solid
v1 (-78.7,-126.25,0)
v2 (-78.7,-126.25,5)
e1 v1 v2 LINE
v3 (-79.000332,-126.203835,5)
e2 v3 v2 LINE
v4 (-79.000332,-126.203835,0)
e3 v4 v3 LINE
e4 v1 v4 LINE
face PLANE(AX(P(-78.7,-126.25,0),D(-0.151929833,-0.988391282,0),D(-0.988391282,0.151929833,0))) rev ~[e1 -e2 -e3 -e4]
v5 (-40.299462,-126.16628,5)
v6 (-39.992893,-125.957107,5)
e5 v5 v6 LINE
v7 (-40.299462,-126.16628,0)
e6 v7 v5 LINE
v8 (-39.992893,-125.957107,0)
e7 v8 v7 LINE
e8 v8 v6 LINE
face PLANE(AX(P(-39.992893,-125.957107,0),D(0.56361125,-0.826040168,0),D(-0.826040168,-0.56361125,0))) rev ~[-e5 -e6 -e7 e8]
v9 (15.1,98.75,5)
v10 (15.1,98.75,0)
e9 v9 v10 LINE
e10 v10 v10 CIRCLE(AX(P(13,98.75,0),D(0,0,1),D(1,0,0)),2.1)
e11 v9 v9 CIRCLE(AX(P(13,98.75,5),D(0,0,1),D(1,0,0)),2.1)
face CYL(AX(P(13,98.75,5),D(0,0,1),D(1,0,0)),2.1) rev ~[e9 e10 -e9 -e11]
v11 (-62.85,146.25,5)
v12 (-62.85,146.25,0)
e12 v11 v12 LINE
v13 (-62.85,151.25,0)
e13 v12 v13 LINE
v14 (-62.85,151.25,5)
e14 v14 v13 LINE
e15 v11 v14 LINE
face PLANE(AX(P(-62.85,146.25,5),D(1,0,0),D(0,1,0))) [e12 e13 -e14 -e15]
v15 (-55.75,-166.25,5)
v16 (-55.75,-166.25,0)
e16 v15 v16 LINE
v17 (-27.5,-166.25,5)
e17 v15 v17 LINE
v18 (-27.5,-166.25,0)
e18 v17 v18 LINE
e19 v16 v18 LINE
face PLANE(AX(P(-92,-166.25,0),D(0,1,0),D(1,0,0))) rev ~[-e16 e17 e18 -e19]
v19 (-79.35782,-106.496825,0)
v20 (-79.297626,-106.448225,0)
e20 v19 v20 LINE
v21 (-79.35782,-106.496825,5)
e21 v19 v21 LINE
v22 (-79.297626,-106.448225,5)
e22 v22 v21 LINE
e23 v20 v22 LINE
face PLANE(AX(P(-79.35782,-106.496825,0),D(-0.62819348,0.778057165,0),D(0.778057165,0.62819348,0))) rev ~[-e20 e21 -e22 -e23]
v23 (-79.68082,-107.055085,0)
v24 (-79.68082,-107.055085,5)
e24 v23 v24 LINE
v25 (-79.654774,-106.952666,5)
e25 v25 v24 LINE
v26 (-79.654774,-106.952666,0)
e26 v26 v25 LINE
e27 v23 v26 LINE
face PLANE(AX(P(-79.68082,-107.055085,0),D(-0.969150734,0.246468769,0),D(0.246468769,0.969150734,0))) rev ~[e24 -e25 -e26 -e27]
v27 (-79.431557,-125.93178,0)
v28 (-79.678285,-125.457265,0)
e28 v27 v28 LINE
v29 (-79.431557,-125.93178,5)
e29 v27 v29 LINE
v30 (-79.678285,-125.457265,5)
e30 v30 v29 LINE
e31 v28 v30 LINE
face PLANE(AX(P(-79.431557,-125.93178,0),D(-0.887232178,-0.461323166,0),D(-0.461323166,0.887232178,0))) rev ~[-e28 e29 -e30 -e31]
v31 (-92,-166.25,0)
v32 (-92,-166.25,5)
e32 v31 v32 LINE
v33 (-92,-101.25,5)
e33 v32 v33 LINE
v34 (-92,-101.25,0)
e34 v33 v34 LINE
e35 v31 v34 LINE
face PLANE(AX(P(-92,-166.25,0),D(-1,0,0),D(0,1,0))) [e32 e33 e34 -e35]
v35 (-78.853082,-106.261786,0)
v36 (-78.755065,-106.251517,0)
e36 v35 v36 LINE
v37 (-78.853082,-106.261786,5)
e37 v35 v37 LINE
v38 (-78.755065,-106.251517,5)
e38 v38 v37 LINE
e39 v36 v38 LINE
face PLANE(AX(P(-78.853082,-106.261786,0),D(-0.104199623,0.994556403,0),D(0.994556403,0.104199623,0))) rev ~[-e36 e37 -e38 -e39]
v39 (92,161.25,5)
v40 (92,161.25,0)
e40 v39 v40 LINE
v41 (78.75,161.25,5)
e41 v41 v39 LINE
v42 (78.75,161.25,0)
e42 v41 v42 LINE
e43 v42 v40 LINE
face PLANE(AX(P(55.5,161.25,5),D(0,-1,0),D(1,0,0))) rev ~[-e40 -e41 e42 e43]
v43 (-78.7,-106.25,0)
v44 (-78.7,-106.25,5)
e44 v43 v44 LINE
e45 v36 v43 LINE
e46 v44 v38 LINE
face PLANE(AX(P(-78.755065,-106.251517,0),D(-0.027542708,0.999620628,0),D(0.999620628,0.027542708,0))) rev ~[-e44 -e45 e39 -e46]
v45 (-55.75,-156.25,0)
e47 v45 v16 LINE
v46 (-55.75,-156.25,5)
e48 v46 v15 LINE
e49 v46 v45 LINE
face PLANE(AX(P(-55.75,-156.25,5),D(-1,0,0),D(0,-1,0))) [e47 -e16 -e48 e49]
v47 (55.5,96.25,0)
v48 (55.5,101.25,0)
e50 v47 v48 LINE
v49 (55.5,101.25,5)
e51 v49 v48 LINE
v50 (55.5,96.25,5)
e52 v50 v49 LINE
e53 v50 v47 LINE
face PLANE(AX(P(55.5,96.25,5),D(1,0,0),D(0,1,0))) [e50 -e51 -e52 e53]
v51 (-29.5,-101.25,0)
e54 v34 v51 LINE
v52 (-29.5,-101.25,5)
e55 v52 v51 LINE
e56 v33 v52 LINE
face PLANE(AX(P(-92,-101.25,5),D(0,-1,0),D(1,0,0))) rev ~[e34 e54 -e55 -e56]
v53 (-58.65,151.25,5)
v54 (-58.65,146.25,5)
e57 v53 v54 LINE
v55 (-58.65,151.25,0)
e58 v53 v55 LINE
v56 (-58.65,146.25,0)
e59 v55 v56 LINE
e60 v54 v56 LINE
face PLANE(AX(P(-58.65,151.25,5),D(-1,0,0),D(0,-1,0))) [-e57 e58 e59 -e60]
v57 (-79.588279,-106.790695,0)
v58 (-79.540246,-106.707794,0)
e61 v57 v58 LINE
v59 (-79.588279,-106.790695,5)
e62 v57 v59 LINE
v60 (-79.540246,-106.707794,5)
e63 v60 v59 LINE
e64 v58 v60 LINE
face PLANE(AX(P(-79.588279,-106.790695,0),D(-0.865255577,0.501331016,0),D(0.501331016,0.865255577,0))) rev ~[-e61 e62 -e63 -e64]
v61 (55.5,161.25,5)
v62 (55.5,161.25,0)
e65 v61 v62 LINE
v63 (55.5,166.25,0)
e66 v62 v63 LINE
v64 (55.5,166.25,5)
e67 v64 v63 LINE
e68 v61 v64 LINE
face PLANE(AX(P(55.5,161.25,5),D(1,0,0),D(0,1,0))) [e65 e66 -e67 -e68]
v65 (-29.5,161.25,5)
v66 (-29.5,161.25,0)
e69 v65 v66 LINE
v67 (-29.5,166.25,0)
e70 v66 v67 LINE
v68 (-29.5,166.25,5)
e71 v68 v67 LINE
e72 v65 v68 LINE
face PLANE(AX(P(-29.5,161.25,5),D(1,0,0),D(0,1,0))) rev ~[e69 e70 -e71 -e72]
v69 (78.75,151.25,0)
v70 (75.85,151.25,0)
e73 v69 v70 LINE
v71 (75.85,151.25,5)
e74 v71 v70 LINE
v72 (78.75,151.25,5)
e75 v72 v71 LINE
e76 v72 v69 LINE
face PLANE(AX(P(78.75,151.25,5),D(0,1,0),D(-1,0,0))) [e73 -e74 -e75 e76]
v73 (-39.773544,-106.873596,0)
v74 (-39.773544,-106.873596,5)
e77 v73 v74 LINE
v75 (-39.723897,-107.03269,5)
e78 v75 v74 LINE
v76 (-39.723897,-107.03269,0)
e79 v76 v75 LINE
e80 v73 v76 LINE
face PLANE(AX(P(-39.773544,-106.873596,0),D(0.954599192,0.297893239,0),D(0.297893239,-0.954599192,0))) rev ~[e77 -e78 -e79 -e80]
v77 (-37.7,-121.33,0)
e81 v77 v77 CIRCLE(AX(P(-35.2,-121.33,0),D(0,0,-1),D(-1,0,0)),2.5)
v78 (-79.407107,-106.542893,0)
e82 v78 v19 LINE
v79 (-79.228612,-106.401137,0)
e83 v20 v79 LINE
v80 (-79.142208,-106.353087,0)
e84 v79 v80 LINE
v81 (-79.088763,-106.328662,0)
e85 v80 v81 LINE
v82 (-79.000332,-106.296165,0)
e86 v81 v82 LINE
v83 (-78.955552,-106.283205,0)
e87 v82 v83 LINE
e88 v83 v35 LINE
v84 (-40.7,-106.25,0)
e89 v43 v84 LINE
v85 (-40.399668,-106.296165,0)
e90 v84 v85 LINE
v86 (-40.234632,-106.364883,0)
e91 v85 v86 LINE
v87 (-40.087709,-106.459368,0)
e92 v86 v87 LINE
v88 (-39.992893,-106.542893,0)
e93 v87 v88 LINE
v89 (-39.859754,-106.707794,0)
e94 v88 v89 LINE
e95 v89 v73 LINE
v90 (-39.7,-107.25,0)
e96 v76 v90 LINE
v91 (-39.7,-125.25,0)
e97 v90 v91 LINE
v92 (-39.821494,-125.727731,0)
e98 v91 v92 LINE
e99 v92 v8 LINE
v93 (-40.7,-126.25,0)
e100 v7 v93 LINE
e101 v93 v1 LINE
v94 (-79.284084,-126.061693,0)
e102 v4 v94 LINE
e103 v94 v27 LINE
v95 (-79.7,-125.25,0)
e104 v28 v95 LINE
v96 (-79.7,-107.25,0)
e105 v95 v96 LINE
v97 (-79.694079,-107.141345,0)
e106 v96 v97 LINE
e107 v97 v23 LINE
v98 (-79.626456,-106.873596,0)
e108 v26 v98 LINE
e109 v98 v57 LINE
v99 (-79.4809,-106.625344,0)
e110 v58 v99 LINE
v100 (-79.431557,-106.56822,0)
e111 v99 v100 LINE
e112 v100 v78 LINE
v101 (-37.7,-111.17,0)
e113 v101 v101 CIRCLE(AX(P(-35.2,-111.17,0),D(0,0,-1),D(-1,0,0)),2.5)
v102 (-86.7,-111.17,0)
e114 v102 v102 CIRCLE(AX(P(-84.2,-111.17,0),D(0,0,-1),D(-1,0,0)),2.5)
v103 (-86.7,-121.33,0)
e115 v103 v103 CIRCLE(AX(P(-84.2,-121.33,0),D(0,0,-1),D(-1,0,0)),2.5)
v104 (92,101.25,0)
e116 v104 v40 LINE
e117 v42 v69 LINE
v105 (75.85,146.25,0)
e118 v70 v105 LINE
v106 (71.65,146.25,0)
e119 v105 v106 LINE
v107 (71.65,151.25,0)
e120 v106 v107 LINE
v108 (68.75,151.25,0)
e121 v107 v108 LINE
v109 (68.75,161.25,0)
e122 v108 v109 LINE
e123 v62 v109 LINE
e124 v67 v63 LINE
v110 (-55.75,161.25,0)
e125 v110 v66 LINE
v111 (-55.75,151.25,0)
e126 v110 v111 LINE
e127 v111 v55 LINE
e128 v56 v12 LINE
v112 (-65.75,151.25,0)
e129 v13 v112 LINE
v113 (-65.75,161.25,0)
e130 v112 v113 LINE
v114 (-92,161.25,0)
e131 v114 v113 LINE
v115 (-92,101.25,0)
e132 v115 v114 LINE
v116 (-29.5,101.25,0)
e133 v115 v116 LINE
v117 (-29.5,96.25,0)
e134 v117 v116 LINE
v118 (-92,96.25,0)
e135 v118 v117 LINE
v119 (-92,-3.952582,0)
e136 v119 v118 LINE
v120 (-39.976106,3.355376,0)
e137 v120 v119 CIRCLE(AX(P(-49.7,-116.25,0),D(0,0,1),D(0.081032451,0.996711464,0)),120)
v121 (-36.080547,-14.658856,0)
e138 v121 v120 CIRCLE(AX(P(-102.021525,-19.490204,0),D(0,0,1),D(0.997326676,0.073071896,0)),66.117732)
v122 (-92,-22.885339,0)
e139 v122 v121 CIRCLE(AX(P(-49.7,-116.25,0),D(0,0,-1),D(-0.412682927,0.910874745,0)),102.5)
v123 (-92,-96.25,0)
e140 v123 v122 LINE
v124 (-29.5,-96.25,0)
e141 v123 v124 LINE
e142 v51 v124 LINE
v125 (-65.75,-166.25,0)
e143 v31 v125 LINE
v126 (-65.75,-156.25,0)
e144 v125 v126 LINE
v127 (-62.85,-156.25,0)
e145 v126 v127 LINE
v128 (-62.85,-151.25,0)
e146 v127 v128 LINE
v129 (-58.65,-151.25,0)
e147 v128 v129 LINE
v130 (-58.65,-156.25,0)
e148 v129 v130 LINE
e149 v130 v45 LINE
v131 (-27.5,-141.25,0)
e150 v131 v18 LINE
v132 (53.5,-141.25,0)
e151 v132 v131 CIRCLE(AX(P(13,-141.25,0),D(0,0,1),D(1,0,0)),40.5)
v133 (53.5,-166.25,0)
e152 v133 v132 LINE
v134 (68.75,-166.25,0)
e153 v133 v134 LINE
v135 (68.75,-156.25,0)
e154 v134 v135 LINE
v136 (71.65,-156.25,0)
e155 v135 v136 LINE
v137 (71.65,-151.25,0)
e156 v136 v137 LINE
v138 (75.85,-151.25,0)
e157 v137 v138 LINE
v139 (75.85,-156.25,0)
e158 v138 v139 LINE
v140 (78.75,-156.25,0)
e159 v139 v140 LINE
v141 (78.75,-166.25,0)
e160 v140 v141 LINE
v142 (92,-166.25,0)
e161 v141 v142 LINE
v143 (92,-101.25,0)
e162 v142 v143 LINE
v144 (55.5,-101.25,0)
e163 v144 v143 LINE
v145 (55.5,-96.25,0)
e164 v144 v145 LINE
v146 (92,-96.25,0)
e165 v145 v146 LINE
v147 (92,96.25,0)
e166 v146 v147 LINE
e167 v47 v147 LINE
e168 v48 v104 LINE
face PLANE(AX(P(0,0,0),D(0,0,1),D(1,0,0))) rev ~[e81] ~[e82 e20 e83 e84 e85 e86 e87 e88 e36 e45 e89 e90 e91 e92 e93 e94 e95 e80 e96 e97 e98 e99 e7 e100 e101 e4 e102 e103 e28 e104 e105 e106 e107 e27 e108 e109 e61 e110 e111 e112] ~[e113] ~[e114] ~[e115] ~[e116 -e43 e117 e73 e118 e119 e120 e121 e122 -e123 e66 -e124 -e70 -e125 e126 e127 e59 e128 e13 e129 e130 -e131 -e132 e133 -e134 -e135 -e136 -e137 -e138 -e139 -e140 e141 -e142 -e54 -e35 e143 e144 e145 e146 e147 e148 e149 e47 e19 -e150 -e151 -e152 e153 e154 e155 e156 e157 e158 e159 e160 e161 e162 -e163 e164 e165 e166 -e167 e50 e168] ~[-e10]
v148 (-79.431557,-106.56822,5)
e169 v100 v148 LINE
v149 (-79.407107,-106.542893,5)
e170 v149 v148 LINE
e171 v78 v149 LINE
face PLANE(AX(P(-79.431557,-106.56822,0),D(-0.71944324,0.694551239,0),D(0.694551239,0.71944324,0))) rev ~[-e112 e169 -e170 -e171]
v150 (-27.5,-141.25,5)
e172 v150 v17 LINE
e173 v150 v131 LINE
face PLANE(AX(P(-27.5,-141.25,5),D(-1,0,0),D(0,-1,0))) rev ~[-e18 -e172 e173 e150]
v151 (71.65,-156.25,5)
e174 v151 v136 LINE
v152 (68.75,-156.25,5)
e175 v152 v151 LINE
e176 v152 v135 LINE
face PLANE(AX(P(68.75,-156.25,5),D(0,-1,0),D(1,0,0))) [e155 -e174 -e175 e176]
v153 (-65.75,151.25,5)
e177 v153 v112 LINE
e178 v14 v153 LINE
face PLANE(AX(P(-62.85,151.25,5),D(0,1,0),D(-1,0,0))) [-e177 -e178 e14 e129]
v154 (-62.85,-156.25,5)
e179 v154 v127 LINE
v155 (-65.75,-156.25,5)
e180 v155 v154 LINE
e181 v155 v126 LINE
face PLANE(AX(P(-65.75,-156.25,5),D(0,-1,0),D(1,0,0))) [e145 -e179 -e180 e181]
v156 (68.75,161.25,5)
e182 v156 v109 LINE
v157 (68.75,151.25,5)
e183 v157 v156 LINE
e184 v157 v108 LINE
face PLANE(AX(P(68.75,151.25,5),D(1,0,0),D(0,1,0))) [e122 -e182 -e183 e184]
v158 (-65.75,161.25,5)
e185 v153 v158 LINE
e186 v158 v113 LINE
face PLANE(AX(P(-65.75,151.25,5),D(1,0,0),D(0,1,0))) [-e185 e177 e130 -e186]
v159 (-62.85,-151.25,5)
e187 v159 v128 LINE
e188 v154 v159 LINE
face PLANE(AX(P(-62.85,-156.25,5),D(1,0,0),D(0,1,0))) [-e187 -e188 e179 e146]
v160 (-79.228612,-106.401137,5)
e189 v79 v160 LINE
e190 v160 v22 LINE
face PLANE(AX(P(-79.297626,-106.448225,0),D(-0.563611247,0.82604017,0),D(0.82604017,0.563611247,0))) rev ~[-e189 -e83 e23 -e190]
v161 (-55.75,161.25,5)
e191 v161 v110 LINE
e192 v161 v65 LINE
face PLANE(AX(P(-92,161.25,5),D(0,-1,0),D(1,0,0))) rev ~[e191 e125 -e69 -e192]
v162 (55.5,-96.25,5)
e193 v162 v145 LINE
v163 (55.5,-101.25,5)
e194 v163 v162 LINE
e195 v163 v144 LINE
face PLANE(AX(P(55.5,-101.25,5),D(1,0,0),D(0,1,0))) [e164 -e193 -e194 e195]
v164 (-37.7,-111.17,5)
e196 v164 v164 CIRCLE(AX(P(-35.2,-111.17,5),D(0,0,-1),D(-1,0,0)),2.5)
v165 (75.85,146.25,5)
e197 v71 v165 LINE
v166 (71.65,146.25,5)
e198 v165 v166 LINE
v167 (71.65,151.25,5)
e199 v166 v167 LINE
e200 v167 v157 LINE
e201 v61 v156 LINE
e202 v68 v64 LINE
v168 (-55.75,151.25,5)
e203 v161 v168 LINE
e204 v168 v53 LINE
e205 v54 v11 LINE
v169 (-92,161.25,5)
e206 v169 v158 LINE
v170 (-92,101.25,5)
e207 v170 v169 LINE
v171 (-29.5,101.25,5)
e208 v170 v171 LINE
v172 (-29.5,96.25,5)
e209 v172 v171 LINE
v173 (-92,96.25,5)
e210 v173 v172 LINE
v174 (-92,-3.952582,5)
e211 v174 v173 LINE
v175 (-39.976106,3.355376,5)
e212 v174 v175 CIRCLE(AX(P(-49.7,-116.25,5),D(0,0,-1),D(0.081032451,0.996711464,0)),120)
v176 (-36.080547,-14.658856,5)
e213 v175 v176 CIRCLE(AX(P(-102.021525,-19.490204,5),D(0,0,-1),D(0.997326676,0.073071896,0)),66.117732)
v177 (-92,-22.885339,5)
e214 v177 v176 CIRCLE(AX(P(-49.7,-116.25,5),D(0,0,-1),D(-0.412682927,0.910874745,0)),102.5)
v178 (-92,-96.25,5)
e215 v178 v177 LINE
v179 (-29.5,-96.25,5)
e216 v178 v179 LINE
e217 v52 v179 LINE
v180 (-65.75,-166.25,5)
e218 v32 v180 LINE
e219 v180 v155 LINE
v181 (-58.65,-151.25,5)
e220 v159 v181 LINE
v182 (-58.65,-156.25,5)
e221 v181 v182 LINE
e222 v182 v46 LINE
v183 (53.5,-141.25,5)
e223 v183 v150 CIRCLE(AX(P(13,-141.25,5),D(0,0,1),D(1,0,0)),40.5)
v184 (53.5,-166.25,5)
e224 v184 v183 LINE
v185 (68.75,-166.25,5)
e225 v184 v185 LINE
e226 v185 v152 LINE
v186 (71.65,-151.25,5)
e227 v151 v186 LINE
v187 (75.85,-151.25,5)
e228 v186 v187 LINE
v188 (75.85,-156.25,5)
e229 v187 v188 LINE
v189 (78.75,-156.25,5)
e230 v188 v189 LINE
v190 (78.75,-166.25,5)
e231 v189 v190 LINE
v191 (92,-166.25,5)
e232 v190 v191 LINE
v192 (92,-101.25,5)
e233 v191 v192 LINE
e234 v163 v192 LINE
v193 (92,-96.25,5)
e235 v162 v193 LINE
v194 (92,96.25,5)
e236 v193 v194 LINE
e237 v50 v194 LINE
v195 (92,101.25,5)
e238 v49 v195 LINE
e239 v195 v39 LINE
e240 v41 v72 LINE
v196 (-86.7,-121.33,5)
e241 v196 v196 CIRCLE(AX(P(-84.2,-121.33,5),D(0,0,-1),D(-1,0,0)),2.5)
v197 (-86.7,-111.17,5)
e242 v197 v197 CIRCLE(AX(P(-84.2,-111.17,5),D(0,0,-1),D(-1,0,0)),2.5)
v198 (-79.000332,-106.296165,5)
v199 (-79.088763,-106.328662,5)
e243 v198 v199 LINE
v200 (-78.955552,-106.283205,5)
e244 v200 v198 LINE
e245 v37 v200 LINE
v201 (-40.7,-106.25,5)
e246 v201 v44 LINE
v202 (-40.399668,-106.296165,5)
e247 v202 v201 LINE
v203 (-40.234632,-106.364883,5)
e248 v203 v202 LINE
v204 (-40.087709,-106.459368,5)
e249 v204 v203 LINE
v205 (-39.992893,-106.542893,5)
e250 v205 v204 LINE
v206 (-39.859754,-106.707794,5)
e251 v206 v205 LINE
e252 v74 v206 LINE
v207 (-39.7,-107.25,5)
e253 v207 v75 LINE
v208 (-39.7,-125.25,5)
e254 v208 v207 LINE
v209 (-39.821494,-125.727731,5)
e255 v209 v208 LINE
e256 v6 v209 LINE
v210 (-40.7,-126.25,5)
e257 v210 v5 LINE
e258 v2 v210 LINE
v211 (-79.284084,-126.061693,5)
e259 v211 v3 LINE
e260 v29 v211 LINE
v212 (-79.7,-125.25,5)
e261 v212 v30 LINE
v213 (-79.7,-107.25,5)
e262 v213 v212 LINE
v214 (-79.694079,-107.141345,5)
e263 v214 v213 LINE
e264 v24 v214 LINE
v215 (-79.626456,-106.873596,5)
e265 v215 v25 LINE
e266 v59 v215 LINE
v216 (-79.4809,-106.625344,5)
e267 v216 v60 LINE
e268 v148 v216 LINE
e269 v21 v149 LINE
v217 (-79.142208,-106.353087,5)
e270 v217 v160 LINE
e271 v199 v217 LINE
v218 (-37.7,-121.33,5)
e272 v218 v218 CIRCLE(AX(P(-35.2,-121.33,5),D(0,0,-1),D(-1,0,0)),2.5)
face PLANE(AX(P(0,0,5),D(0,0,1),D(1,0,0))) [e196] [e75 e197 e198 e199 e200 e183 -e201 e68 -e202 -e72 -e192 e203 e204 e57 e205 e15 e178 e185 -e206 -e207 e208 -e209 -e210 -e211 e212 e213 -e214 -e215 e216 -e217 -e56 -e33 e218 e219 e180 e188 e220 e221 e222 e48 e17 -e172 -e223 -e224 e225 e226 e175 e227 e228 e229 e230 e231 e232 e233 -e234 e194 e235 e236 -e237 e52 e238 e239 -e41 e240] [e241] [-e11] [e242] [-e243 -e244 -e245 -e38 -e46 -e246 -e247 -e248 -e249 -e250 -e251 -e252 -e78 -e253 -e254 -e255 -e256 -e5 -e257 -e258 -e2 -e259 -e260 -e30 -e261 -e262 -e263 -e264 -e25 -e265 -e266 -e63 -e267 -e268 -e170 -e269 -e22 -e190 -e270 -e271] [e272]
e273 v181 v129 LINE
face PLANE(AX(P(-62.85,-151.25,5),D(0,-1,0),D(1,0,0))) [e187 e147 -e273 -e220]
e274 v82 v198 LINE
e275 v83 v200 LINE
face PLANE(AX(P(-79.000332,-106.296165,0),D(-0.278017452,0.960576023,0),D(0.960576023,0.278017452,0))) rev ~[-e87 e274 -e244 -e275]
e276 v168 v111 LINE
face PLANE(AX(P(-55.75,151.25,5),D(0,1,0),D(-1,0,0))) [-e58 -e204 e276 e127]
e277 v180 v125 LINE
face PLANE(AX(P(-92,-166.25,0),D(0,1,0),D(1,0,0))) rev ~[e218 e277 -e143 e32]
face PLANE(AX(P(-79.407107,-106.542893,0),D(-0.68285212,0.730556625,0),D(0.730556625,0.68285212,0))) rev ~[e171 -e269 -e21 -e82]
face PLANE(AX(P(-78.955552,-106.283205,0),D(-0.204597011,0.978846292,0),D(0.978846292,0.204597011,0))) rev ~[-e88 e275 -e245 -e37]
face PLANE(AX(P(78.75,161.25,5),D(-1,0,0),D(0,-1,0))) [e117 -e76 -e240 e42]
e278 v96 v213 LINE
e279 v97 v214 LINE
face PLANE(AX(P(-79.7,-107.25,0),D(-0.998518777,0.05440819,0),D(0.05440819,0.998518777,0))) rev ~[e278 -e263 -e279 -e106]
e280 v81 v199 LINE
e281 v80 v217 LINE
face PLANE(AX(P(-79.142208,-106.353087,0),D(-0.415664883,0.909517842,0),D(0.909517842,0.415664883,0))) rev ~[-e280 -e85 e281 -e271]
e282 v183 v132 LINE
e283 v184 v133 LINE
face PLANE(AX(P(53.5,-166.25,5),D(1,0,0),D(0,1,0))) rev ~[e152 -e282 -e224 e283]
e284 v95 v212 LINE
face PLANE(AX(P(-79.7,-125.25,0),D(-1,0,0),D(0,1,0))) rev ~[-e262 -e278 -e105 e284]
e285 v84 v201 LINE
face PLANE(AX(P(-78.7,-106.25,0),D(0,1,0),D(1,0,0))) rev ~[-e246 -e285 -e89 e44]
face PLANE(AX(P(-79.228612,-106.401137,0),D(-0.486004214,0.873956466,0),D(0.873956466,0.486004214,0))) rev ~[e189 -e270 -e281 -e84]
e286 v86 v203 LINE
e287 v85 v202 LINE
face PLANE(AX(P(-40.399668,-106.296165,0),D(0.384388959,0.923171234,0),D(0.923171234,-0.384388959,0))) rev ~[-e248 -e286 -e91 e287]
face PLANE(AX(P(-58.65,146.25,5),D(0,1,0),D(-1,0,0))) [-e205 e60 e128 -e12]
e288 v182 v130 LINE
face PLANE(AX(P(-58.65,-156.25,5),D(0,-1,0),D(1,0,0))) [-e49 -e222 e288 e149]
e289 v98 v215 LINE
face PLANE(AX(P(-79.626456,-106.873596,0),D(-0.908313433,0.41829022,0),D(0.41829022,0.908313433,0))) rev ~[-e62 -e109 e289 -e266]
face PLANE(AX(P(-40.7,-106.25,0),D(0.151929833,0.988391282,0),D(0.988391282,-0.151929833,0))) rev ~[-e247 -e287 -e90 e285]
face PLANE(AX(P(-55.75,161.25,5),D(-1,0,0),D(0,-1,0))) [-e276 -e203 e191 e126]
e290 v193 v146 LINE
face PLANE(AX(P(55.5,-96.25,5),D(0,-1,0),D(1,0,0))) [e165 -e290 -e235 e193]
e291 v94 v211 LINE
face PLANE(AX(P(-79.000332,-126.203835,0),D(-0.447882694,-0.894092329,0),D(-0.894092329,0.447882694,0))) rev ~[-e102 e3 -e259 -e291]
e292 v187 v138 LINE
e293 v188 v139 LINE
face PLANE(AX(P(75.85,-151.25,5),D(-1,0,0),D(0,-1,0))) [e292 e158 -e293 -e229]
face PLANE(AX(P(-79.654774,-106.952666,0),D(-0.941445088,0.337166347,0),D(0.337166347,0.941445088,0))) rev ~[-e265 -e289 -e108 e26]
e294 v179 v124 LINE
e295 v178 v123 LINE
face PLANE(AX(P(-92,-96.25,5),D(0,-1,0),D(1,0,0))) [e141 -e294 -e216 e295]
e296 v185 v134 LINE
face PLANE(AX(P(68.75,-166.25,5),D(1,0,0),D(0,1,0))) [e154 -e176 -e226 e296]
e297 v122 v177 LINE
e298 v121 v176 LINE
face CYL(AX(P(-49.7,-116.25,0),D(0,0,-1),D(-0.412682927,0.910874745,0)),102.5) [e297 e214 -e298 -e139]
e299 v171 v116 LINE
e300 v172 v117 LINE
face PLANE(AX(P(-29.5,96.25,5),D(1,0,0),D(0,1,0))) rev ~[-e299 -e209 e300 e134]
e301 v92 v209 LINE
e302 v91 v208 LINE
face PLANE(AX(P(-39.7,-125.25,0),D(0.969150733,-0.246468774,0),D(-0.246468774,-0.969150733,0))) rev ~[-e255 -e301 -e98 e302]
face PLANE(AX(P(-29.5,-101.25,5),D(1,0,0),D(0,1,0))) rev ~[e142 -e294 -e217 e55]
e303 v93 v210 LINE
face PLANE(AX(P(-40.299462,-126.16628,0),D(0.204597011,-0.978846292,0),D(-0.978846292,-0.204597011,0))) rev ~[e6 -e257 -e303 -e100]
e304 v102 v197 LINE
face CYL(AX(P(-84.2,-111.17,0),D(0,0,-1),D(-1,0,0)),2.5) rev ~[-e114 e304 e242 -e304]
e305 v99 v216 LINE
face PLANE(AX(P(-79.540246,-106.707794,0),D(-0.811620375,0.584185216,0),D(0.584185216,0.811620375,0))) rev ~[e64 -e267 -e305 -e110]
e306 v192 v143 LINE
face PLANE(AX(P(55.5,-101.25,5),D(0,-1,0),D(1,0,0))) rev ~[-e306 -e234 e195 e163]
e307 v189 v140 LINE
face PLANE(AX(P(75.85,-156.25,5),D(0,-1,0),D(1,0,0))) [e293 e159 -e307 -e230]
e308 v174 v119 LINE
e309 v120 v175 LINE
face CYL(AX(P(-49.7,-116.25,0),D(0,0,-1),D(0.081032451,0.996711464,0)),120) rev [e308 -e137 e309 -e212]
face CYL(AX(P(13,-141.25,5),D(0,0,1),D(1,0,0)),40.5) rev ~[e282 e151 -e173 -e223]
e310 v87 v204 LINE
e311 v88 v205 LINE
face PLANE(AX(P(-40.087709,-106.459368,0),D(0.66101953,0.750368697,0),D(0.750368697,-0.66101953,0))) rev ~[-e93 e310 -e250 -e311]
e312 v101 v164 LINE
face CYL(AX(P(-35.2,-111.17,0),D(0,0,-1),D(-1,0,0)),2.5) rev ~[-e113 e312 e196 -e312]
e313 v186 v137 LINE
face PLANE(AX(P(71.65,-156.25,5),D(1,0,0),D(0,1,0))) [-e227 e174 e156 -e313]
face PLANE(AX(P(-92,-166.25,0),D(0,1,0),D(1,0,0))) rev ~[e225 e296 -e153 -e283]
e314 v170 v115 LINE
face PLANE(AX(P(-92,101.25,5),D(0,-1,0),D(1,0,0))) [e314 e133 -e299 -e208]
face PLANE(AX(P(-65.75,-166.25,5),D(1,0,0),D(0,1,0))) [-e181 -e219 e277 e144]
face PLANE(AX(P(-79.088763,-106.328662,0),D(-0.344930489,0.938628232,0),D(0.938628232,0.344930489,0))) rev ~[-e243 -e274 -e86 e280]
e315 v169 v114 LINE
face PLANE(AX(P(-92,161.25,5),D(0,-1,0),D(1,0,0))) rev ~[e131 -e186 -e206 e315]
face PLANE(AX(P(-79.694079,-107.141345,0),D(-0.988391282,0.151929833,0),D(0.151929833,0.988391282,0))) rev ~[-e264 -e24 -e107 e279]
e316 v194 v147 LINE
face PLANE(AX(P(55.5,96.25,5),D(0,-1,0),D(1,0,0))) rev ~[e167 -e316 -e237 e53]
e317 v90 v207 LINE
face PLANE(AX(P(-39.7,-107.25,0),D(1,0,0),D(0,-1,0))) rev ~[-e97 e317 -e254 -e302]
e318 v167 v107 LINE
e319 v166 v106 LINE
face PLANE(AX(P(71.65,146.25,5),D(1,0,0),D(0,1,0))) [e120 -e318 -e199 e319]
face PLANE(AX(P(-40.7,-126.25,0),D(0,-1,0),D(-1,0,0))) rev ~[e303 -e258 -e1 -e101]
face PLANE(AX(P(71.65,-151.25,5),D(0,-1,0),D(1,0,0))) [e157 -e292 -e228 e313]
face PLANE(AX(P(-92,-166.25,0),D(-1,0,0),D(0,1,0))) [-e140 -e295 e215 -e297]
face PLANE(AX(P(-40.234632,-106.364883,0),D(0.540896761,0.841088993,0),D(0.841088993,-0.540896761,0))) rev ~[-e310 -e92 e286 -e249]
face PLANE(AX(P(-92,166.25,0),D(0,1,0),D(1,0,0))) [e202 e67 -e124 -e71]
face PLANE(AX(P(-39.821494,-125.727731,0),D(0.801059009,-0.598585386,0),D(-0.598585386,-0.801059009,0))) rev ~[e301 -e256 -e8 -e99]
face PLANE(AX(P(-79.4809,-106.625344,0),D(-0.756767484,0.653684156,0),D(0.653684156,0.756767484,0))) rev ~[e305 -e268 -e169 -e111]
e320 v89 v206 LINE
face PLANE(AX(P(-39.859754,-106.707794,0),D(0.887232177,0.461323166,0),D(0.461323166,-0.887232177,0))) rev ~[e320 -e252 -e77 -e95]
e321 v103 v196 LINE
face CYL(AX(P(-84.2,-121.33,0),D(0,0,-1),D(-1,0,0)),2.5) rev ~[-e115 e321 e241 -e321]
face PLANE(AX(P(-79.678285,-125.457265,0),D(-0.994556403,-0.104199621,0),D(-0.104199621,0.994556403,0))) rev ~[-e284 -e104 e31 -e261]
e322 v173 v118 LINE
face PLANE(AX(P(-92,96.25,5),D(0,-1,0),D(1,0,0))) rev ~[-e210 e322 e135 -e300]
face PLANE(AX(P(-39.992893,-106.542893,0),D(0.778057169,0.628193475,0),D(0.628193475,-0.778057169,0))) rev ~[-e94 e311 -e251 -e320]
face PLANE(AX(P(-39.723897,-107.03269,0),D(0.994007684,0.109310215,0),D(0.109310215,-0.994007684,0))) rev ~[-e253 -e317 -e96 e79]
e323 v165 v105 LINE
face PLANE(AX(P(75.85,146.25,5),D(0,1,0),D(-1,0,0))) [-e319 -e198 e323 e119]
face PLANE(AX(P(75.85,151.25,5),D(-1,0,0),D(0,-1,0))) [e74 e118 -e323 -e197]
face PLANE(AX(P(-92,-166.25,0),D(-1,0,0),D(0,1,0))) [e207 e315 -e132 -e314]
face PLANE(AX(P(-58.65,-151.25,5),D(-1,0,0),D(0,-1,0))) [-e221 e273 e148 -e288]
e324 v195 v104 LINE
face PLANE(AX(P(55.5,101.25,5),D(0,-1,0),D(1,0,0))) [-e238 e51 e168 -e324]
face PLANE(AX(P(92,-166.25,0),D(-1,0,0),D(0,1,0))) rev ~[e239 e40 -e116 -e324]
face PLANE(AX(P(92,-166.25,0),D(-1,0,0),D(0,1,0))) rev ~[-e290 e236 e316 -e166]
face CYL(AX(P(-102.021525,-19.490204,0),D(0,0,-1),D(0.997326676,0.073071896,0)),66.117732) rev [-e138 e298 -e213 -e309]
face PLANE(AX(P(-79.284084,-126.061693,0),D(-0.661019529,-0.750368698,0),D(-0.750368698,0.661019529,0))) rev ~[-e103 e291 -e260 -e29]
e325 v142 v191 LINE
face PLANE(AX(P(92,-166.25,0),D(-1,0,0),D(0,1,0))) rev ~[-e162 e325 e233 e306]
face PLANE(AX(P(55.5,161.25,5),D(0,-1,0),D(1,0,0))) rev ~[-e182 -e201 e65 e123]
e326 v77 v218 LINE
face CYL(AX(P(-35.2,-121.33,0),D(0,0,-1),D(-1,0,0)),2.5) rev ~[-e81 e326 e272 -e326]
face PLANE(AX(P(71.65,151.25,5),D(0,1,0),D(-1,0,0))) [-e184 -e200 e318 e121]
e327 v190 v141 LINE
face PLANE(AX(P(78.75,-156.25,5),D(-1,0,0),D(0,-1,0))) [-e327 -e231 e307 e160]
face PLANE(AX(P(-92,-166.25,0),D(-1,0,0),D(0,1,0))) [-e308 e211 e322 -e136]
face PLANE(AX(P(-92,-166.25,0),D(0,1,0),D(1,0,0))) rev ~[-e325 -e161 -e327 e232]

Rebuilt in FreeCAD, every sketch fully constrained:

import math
import FreeCAD as App
import Part
import Sketcher
Q = App.Units.Quantity


def add_polygon(sketch, points):
    """Adds a closed chain of lines whose ends are joined by coincident constraints."""
    first, n = sketch.GeometryCount, len(points)
    for a, b in zip(points, points[1:] + points[:1]):
        sketch.addGeometry(Part.LineSegment(App.Vector(*a, 0), App.Vector(*b, 0)), False)
    for i in range(n):
        sketch.addConstraint(Sketcher.Constraint("Coincident", first + i, 2, first + (i + 1) % n, 1))

doc = App.newDocument("Part")
body = doc.addObject("PartDesign::Body", "Body")

sketch1 = body.newObject("Sketcher::SketchObject", "Sketch")
sketch1.AttachmentSupport = (doc.getObject("XY_Plane"), [""])
sketch1.MapMode = "FlatFace"
add_polygon(sketch1, [(-92, 166), (-92, -166), (92, -166), (92, 166)])
sketch1.addConstraint(Sketcher.Constraint("Vertical", 0))
sketch1.addConstraint(Sketcher.Constraint("Horizontal", 1))
sketch1.addConstraint(Sketcher.Constraint("Vertical", 2))
sketch1.addConstraint(Sketcher.Constraint("Horizontal", 3))
sketch1.addConstraint(Sketcher.Constraint("Symmetric", 0, 2, 2, 2, -1, 1))
sketch1.addConstraint(Sketcher.Constraint("DistanceX", 1, 1, 1, 2, Q("184 mm")))
sketch1.addConstraint(Sketcher.Constraint("DistanceY", 0, 2, 0, 1, Q("332.5 mm")))
pad1 = body.newObject("PartDesign::Pad", "Pad")
pad1.Profile = sketch1
pad1.Length = 5

sketch2 = body.newObject("Sketcher::SketchObject", "Sketch001")
sketch2.AttachmentSupport = (doc.getObject("XY_Plane"), [""])
sketch2.MapMode = "FlatFace"
sketch2.AttachmentOffset = App.Placement(App.Vector(0, 0, 5), App.Rotation())
add_polygon(sketch2, [(-92, -96), (-92, -101), (-30, -101), (-30, -96)])
add_polygon(sketch2, [(56, -96), (56, -101), (92, -101), (92, -96)])
sketch2.addGeometry(Part.LineSegment(App.Vector(-28, -141, 0), App.Vector(-28, -166, 0)), False)
sketch2.addGeometry(Part.LineSegment(App.Vector(-28, -166, 0), App.Vector(54, -166, 0)), False)
sketch2.addGeometry(Part.LineSegment(App.Vector(54, -166, 0), App.Vector(54, -141, 0)), False)
sketch2.addGeometry(Part.ArcOfCircle(Part.Circle(App.Vector(13, -141, 0), App.Vector(0, 0, 1), 40), math.radians(0), math.radians(180)), False)
add_polygon(sketch2, [(-92, 166), (-92, 161), (-30, 161), (-30, 166)])
add_polygon(sketch2, [(56, 166), (56, 161), (92, 161), (92, 166)])
add_polygon(sketch2, [(-92, 101), (-92, 96), (-30, 96), (-30, 101)])
add_polygon(sketch2, [(56, 101), (56, 96), (92, 96), (92, 101)])
sketch2.addConstraint(Sketcher.Constraint("Coincident", 8, 2, 9, 1))
sketch2.addConstraint(Sketcher.Constraint("Coincident", 9, 2, 10, 1))
sketch2.addConstraint(Sketcher.Constraint("Tangent", 10, 2, 11, 1))
sketch2.addConstraint(Sketcher.Constraint("Tangent", 11, 2, 8, 1))
sketch2.addConstraint(Sketcher.Constraint("Vertical", 0))
sketch2.addConstraint(Sketcher.Constraint("Horizontal", 1))
sketch2.addConstraint(Sketcher.Constraint("Vertical", 2))
sketch2.addConstraint(Sketcher.Constraint("Horizontal", 3))
sketch2.addConstraint(Sketcher.Constraint("Vertical", 4))
sketch2.addConstraint(Sketcher.Constraint("Horizontal", 5))
sketch2.addConstraint(Sketcher.Constraint("Vertical", 6))
sketch2.addConstraint(Sketcher.Constraint("Horizontal", 7))
sketch2.addConstraint(Sketcher.Constraint("Vertical", 8))
sketch2.addConstraint(Sketcher.Constraint("Horizontal", 9))
sketch2.addConstraint(Sketcher.Constraint("Vertical", 10))
sketch2.addConstraint(Sketcher.Constraint("Vertical", 12))
sketch2.addConstraint(Sketcher.Constraint("Horizontal", 13))
sketch2.addConstraint(Sketcher.Constraint("Vertical", 14))
sketch2.addConstraint(Sketcher.Constraint("Horizontal", 15))
sketch2.addConstraint(Sketcher.Constraint("Vertical", 16))
sketch2.addConstraint(Sketcher.Constraint("Horizontal", 17))
sketch2.addConstraint(Sketcher.Constraint("Vertical", 18))
sketch2.addConstraint(Sketcher.Constraint("Horizontal", 19))
sketch2.addConstraint(Sketcher.Constraint("Vertical", 20))
sketch2.addConstraint(Sketcher.Constraint("Horizontal", 21))
sketch2.addConstraint(Sketcher.Constraint("Vertical", 22))
sketch2.addConstraint(Sketcher.Constraint("Horizontal", 23))
sketch2.addConstraint(Sketcher.Constraint("Vertical", 24))
sketch2.addConstraint(Sketcher.Constraint("Horizontal", 25))
sketch2.addConstraint(Sketcher.Constraint("Vertical", 26))
sketch2.addConstraint(Sketcher.Constraint("Horizontal", 27))
sketch2.addConstraint(Sketcher.Constraint("Symmetric", 6, 2, 20, 2, -1, 1))
sketch2.addConstraint(Sketcher.Constraint("Symmetric", 3, 2, 25, 2, -1, 1))
sketch2.addConstraint(Sketcher.Constraint("Symmetric", 0, 2, 5, 2, -2))
sketch2.addConstraint(Sketcher.Constraint("Symmetric", 12, 2, 17, 2, -2))
sketch2.addConstraint(Sketcher.Constraint("Symmetric", 2, 2, 21, 2, -1))
sketch2.addConstraint(Sketcher.Constraint("Symmetric", 4, 2, 27, 2, -1))
sketch2.addConstraint(Sketcher.Constraint("Horizontal", 15, 2, 18, 2))
sketch2.addConstraint(Sketcher.Constraint("Horizontal", 23, 2, 26, 2))
sketch2.addConstraint(Sketcher.Constraint("Vertical", 3, 2, 12, 2))
sketch2.addConstraint(Sketcher.Constraint("Vertical", 2, 2, 13, 2))
sketch2.addConstraint(Sketcher.Constraint("Vertical", 7, 2, 16, 2))
sketch2.addConstraint(Sketcher.Constraint("Equal", 6, 12))
sketch2.addConstraint(Sketcher.Constraint("Radius", 11, Q("40.5 mm")))
sketch2.addConstraint(Sketcher.Constraint("DistanceY", 0, 2, 0, 1, Q("5 mm")))
sketch2.addConstraint(Sketcher.Constraint("DistanceY", 8, 2, 8, 1, Q("25 mm")))
sketch2.addConstraint(Sketcher.Constraint("DistanceX", 1, 1, 1, 2, Q("62.5 mm")))
sketch2.addConstraint(Sketcher.Constraint("DistanceX", 5, 1, 5, 2, Q("36.5 mm")))
sketch2.addConstraint(Sketcher.Constraint("DistanceX", -1, 1, 11, 3, Q("13 mm")))
sketch2.addConstraint(Sketcher.Constraint("DistanceX", 0, 2, -1, 1, Q("92 mm")))
sketch2.addConstraint(Sketcher.Constraint("DistanceY", 11, 3, 0, 2, Q("40 mm")))
sketch2.addConstraint(Sketcher.Constraint("DistanceY", 20, 2, 12, 2, Q("65 mm")))
sketch2.addConstraint(Sketcher.Constraint("DistanceY", 3, 2, 12, 2, Q("257.5 mm")))
pocket1 = body.newObject("PartDesign::Pocket", "Pocket")
pocket1.Profile = sketch2
pocket1.Length = 5

sketch3 = body.newObject("Sketcher::SketchObject", "Sketch002")
sketch3.AttachmentSupport = (doc.getObject("XY_Plane"), [""])
sketch3.MapMode = "FlatFace"
sketch3.AttachmentOffset = App.Placement(App.Vector(0, 0, 5), App.Rotation())
add_polygon(sketch3, [(-55.8, 151.2), (-55.8, 161.2), (-65.8, 161.2), (-65.8, 151.2), (-62.9, 151.2), (-62.9, 146.2), (-58.6, 146.2), (-58.6, 151.2)])
add_polygon(sketch3, [(78.8, 151.2), (78.8, 161.2), (68.8, 161.2), (68.8, 151.2), (71.7, 151.2), (71.7, 146.2), (75.8, 146.2), (75.8, 151.2)])
add_polygon(sketch3, [(68.8, -156.2), (68.8, -166.2), (78.8, -166.2), (78.8, -156.2), (75.8, -156.2), (75.8, -151.2), (71.7, -151.2), (71.7, -156.2)])
add_polygon(sketch3, [(-65.8, -156.2), (-65.8, -166.2), (-55.8, -166.2), (-55.8, -156.2), (-58.6, -156.2), (-58.6, -151.2), (-62.9, -151.2), (-62.9, -156.2)])
sketch3.addConstraint(Sketcher.Constraint("Vertical", 0))
sketch3.addConstraint(Sketcher.Constraint("Horizontal", 1))
sketch3.addConstraint(Sketcher.Constraint("Vertical", 2))
sketch3.addConstraint(Sketcher.Constraint("Horizontal", 3))
sketch3.addConstraint(Sketcher.Constraint("Vertical", 4))
sketch3.addConstraint(Sketcher.Constraint("Horizontal", 5))
sketch3.addConstraint(Sketcher.Constraint("Vertical", 6))
sketch3.addConstraint(Sketcher.Constraint("Horizontal", 7))
sketch3.addConstraint(Sketcher.Constraint("Vertical", 8))
sketch3.addConstraint(Sketcher.Constraint("Horizontal", 9))
sketch3.addConstraint(Sketcher.Constraint("Vertical", 10))
sketch3.addConstraint(Sketcher.Constraint("Horizontal", 11))
sketch3.addConstraint(Sketcher.Constraint("Vertical", 12))
sketch3.addConstraint(Sketcher.Constraint("Horizontal", 13))
sketch3.addConstraint(Sketcher.Constraint("Vertical", 14))
sketch3.addConstraint(Sketcher.Constraint("Horizontal", 15))
sketch3.addConstraint(Sketcher.Constraint("Vertical", 16))
sketch3.addConstraint(Sketcher.Constraint("Horizontal", 17))
sketch3.addConstraint(Sketcher.Constraint("Vertical", 18))
sketch3.addConstraint(Sketcher.Constraint("Horizontal", 19))
sketch3.addConstraint(Sketcher.Constraint("Vertical", 20))
sketch3.addConstraint(Sketcher.Constraint("Horizontal", 21))
sketch3.addConstraint(Sketcher.Constraint("Vertical", 22))
sketch3.addConstraint(Sketcher.Constraint("Horizontal", 23))
sketch3.addConstraint(Sketcher.Constraint("Vertical", 24))
sketch3.addConstraint(Sketcher.Constraint("Horizontal", 25))
sketch3.addConstraint(Sketcher.Constraint("Vertical", 26))
sketch3.addConstraint(Sketcher.Constraint("Horizontal", 27))
sketch3.addConstraint(Sketcher.Constraint("Vertical", 28))
sketch3.addConstraint(Sketcher.Constraint("Horizontal", 29))
sketch3.addConstraint(Sketcher.Constraint("Vertical", 30))
sketch3.addConstraint(Sketcher.Constraint("Horizontal", 31))
sketch3.addConstraint(Sketcher.Constraint("Symmetric", 14, 2, 20, 2, -1))
sketch3.addConstraint(Sketcher.Constraint("Symmetric", 11, 2, 21, 2, -1))
sketch3.addConstraint(Sketcher.Constraint("Symmetric", 6, 2, 28, 2, -1))
sketch3.addConstraint(Sketcher.Constraint("Symmetric", 3, 2, 29, 2, -1))
sketch3.addConstraint(Sketcher.Constraint("Horizontal", 1, 2, 8, 2))
sketch3.addConstraint(Sketcher.Constraint("Horizontal", 7, 2, 10, 2))
sketch3.addConstraint(Sketcher.Constraint("Horizontal", 5, 2, 12, 2))
sketch3.addConstraint(Sketcher.Constraint("Horizontal", 19, 2, 22, 2))
sketch3.addConstraint(Sketcher.Constraint("Horizontal", 17, 2, 24, 2))
sketch3.addConstraint(Sketcher.Constraint("Horizontal", 23, 2, 26, 2))
sketch3.addConstraint(Sketcher.Constraint("Horizontal", 27, 2, 30, 2))
sketch3.addConstraint(Sketcher.Constraint("Vertical", 10, 2, 16, 2))
sketch3.addConstraint(Sketcher.Constraint("Vertical", 15, 2, 17, 2))
sketch3.addConstraint(Sketcher.Constraint("Vertical", 2, 2, 24, 2))
sketch3.addConstraint(Sketcher.Constraint("Vertical", 7, 2, 25, 2))
sketch3.addConstraint(Sketcher.Constraint("Equal", 3, 7))
sketch3.addConstraint(Sketcher.Constraint("Equal", 1, 9))
sketch3.addConstraint(Sketcher.Constraint("Equal", 7, 11))
sketch3.addConstraint(Sketcher.Constraint("Equal", 5, 13))
sketch3.addConstraint(Sketcher.Constraint("Equal", 25, 0))
sketch3.addConstraint(Sketcher.Constraint("Equal", 10, 16))
sketch3.addConstraint(Sketcher.Constraint("Equal", 14, 20))
sketch3.addConstraint(Sketcher.Constraint("DistanceX", 1, 2, 1, 1, Q("10 mm")))
sketch3.addConstraint(Sketcher.Constraint("DistanceY", 4, 2, 4, 1, Q("5 mm")))
sketch3.addConstraint(Sketcher.Constraint("DistanceX", 3, 1, 3, 2, Q("2.9 mm")))
sketch3.addConstraint(Sketcher.Constraint("DistanceX", 0, 2, 8, 2, Q("134.5 mm")))
sketch3.addConstraint(Sketcher.Constraint("DistanceY", 16, 2, 12, 2, Q("312.5 mm")))
sketch3.addConstraint(Sketcher.Constraint("DistanceX", 0, 2, -1, 1, Q("55.75 mm")))
pocket2 = body.newObject("PartDesign::Pocket", "Pocket001")
pocket2.Profile = sketch3
pocket2.Length = 10

sketch4 = body.newObject("Sketcher::SketchObject", "Sketch003")
sketch4.AttachmentSupport = (doc.getObject("XY_Plane"), [""])
sketch4.MapMode = "FlatFace"
sketch4.AttachmentOffset = App.Placement(App.Vector(0, 0, 5), App.Rotation())
sketch4.addGeometry(Part.Circle(App.Vector(13, 98.8, 0), App.Vector(0, 0, 1), 2.1), False)
sketch4.addConstraint(Sketcher.Constraint("Diameter", 0, Q("4.2 mm")))
sketch4.addConstraint(Sketcher.Constraint("DistanceX", -1, 1, 0, 3, Q("13 mm")))
sketch4.addConstraint(Sketcher.Constraint("DistanceY", -1, 1, 0, 3, Q("98.75 mm")))
pocket3 = body.newObject("PartDesign::Pocket", "Pocket002")
pocket3.Profile = sketch4
pocket3.Length = 10

sketch5 = body.newObject("Sketcher::SketchObject", "Sketch004")
sketch5.AttachmentSupport = (doc.getObject("XY_Plane"), [""])
sketch5.MapMode = "FlatFace"
sketch5.addGeometry(Part.Circle(App.Vector(-35.2, -111.17, 0), App.Vector(0, 0, 1), 2.5), False)
sketch5.addGeometry(Part.Circle(App.Vector(-35.2, -121.33, 0), App.Vector(0, 0, 1), 2.5), False)
sketch5.addGeometry(Part.Circle(App.Vector(-84.2, -121.33, 0), App.Vector(0, 0, 1), 2.5), False)
sketch5.addGeometry(Part.Circle(App.Vector(-84.2, -111.17, 0), App.Vector(0, 0, 1), 2.5), False)
add_polygon(sketch5, [(-40.7, -106.25), (-40.399668, -106.296165), (-40.234632, -106.364883), (-40.087709, -106.459368), (-39.992893, -106.542893), (-39.859754, -106.707794), (-39.773544, -106.873596), (-39.723897, -107.03269), (-39.7, -107.25), (-39.7, -125.25), (-39.821494, -125.727731), (-39.992893, -125.957107), (-40.299462, -126.16628), (-40.7, -126.25), (-78.7, -126.25), (-79.000332, -126.203835), (-79.284084, -126.061693), (-79.431557, -125.93178), (-79.678285, -125.457265), (-79.7, -125.25), (-79.7, -107.25), (-79.694079, -107.141345), (-79.68082, -107.055085), (-79.654774, -106.952666), (-79.626456, -106.873596), (-79.588279, -106.790695), (-79.540246, -106.707794), (-79.4809, -106.625344), (-79.431557, -106.56822), (-79.407107, -106.542893), (-79.35782, -106.496825), (-79.297626, -106.448225), (-79.228612, -106.401137), (-79.142208, -106.353087), (-79.088763, -106.328662), (-79.000332, -106.296165), (-78.955552, -106.283205), (-78.853082, -106.261786), (-78.755065, -106.251517), (-78.7, -106.25)])
sketch5.addConstraint(Sketcher.Constraint("Vertical", 12))
sketch5.addConstraint(Sketcher.Constraint("Horizontal", 17))
sketch5.addConstraint(Sketcher.Constraint("Vertical", 23))
sketch5.addConstraint(Sketcher.Constraint("Horizontal", 43))
sketch5.addConstraint(Sketcher.Constraint("Diameter", 0, Q("5 mm")))
sketch5.addConstraint(Sketcher.Constraint("Diameter", 1, Q("5 mm")))
sketch5.addConstraint(Sketcher.Constraint("Diameter", 2, Q("5 mm")))
sketch5.addConstraint(Sketcher.Constraint("Diameter", 3, Q("5 mm")))
sketch5.addConstraint(Sketcher.Constraint("DistanceX", 17, 2, 17, 1, Q("38 mm")))
sketch5.addConstraint(Sketcher.Constraint("DistanceX", 43, 1, 43, 2, Q("38 mm")))
sketch5.addConstraint(Sketcher.Constraint("DistanceY", 12, 2, 12, 1, Q("18 mm")))
sketch5.addConstraint(Sketcher.Constraint("DistanceY", 23, 1, 23, 2, Q("18 mm")))
sketch5.addConstraint(Sketcher.Constraint("DistanceX", 2, 3, 1, 3, Q("49 mm")))
sketch5.addConstraint(Sketcher.Constraint("DistanceX", 2, 3, 0, 3, Q("49 mm")))
sketch5.addConstraint(Sketcher.Constraint("DistanceX", 3, 3, 0, 3, Q("49 mm")))
sketch5.addConstraint(Sketcher.Constraint("DistanceX", 16, 2, 12, 2, Q("1 mm")))
sketch5.addConstraint(Sketcher.Constraint("DistanceY", 16, 2, 12, 2, Q("1 mm")))
sketch5.addConstraint(Sketcher.Constraint("DistanceX", 22, 2, 17, 2, Q("1 mm")))
sketch5.addConstraint(Sketcher.Constraint("DistanceY", 17, 2, 22, 2, Q("1 mm")))
sketch5.addConstraint(Sketcher.Constraint("DistanceX", 0, 3, -1, 1, Q("35.2 mm")))
sketch5.addConstraint(Sketcher.Constraint("DistanceX", 11, 2, -1, 1, Q("39.7 mm")))
sketch5.addConstraint(Sketcher.Constraint("DistanceX", 42, 2, -1, 1, Q("78.7 mm")))
sketch5.addConstraint(Sketcher.Constraint("DistanceY", 0, 3, -1, 1, Q("111.17 mm")))
sketch5.addConstraint(Sketcher.Constraint("DistanceY", 1, 3, -1, 1, Q("121.33 mm")))
sketch5.addConstraint(Sketcher.Constraint("DistanceY", 2, 3, -1, 1, Q("121.33 mm")))
sketch5.addConstraint(Sketcher.Constraint("DistanceY", 3, 3, -1, 1, Q("111.17 mm")))
sketch5.addConstraint(Sketcher.Constraint("DistanceY", 11, 2, -1, 1, Q("107.25 mm")))
sketch5.addConstraint(Sketcher.Constraint("DistanceY", 42, 2, -1, 1, Q("106.25 mm")))
sketch5.addConstraint(Sketcher.Constraint("Distance", 22, Q("0.208399 mm")))
sketch5.addConstraint(Sketcher.Constraint("DistanceX", 30, 2, -1, 1, Q("79.4809 mm")))
sketch5.addConstraint(Sketcher.Constraint("DistanceY", 8, 2, 7, 2, Q("0.164901 mm")))
sketch5.addConstraint(Sketcher.Constraint("DistanceY", 9, 2, 8, 2, Q("0.165802 mm")))
sketch5.addConstraint(Sketcher.Constraint("DistanceX", 14, 2, 13, 2, Q("0.1714 mm")))
sketch5.addConstraint(Sketcher.Constraint("DistanceX", 21, 2, 19, 2, Q("0.394201 mm")))
sketch5.addConstraint(Sketcher.Constraint("DistanceY", 27, 2, 28, 2, Q("0.082901 mm")))
sketch5.addConstraint(Sketcher.Constraint("DistanceX", 24, 2, 28, 2, Q("0.105801 mm")))
sketch5.addConstraint(Sketcher.Constraint("DistanceY", 28, 2, 29, 2, Q("0.082901 mm")))
sketch5.addConstraint(Sketcher.Constraint("DistanceX", 27, 2, 31, 2, Q("0.194899 mm")))
sketch5.addConstraint(Sketcher.Constraint("DistanceY", 29, 2, 32, 2, Q("0.164901 mm")))
sketch5.addConstraint(Sketcher.Constraint("DistanceY", 33, 2, 34, 2, Q("0.0486 mm")))
sketch5.addConstraint(Sketcher.Constraint("DistanceX", 32, 2, 36, 2, Q("0.264899 mm")))
sketch5.addConstraint(Sketcher.Constraint("DistanceY", 36, 2, 40, 2, Q("0.091301 mm")))
sketch5.addConstraint(Sketcher.Constraint("DistanceX", 37, 2, 41, 2, Q("0.333698 mm")))
sketch5.addConstraint(Sketcher.Constraint("Distance", 4, Q("0.30386 mm")))
sketch5.addConstraint(Sketcher.Constraint("Distance", 5, Q("0.178771 mm")))
sketch5.addConstraint(Sketcher.Constraint("Distance", 6, Q("0.174682 mm")))
sketch5.addConstraint(Sketcher.Constraint("Distance", 7, Q("0.126359 mm")))
sketch5.addConstraint(Sketcher.Constraint("Distance", 8, Q("0.211939 mm")))
sketch5.addConstraint(Sketcher.Constraint("Distance", 10, Q("0.16666 mm")))
sketch5.addConstraint(Sketcher.Constraint("Distance", 11, Q("0.21862 mm")))
sketch5.addConstraint(Sketcher.Constraint("Distance", 14, Q("0.286341 mm")))
sketch5.addConstraint(Sketcher.Constraint("Distance", 15, Q("0.371131 mm")))
sketch5.addConstraint(Sketcher.Constraint("Distance", 18, Q("0.30386 mm")))
sketch5.addConstraint(Sketcher.Constraint("Distance", 26, Q("0.105679 mm")))
sketch5.addConstraint(Sketcher.Constraint("Distance", 28, Q("0.091269 mm")))
sketch5.addConstraint(Sketcher.Constraint("Distance", 29, Q("0.095811 mm")))
sketch5.addConstraint(Sketcher.Constraint("Distance", 35, Q("0.083548 mm")))
sketch5.addConstraint(Sketcher.Constraint("Distance", 37, Q("0.058762 mm")))
sketch5.addConstraint(Sketcher.Constraint("Distance", 39, Q("0.046619 mm")))
sketch5.addConstraint(Sketcher.Constraint("DistanceX", 5, 2, -1, 1, Q("40.234632 mm")))
sketch5.addConstraint(Sketcher.Constraint("DistanceX", 6, 2, -1, 1, Q("40.087709 mm")))
sketch5.addConstraint(Sketcher.Constraint("DistanceY", 10, 2, -1, 1, Q("107.03269 mm")))
sketch5.addConstraint(Sketcher.Constraint("DistanceY", 13, 2, -1, 1, Q("125.727731 mm")))
sketch5.addConstraint(Sketcher.Constraint("DistanceX", 15, 2, -1, 1, Q("40.299462 mm")))
sketch5.addConstraint(Sketcher.Constraint("DistanceY", 15, 2, -1, 1, Q("126.16628 mm")))
sketch5.addConstraint(Sketcher.Constraint("DistanceY", 20, 2, -1, 1, Q("125.93178 mm")))
sketch5.addConstraint(Sketcher.Constraint("DistanceX", 24, 2, -1, 1, Q("79.694079 mm")))
sketch5.addConstraint(Sketcher.Constraint("DistanceX", 25, 2, -1, 1, Q("79.68082 mm")))
sketch5.addConstraint(Sketcher.Constraint("DistanceY", 31, 2, -1, 1, Q("106.56822 mm")))
sketch5.addConstraint(Sketcher.Constraint("DistanceX", 33, 2, -1, 1, Q("79.35782 mm")))
sketch5.addConstraint(Sketcher.Constraint("DistanceX", 39, 2, -1, 1, Q("78.955552 mm")))
sketch5.addConstraint(Sketcher.Constraint("DistanceX", 40, 2, -1, 1, Q("78.853082 mm")))
sketch5.addConstraint(Sketcher.Constraint("DistanceX", 4, 2, 6, 2, Q("0.311959 mm")))
sketch5.addConstraint(Sketcher.Constraint("DistanceX", 5, 2, 7, 2, Q("0.241738 mm")))
sketch5.addConstraint(Sketcher.Constraint("DistanceX", 18, 2, 15, 2, Q("38.70087 mm")))
sketch5.addConstraint(Sketcher.Constraint("DistanceX", 19, 2, 18, 2, Q("0.283751 mm")))
sketch5.addConstraint(Sketcher.Constraint("DistanceY", 18, 2, 19, 2, Q("0.142141 mm")))
sketch5.addConstraint(Sketcher.Constraint("DistanceX", 21, 2, 20, 2, Q("0.246728 mm")))
sketch5.addConstraint(Sketcher.Constraint("DistanceY", 21, 2, 24, 2, Q("18.31592 mm")))
sketch5.addConstraint(Sketcher.Constraint("DistanceY", 24, 2, 25, 2, Q("0.08626 mm")))
sketch5.addConstraint(Sketcher.Constraint("DistanceY", 25, 2, 26, 2, Q("0.102419 mm")))
sketch5.addConstraint(Sketcher.Constraint("DistanceY", 26, 2, 27, 2, Q("0.07907 mm")))
sketch5.addConstraint(Sketcher.Constraint("DistanceY", 29, 2, 30, 2, Q("0.08245 mm")))
sketch5.addConstraint(Sketcher.Constraint("DistanceX", 31, 2, 32, 2, Q("0.02445 mm")))
sketch5.addConstraint(Sketcher.Constraint("DistanceY", 32, 2, 33, 2, Q("0.046068 mm")))
sketch5.addConstraint(Sketcher.Constraint("DistanceX", 32, 2, 34, 2, Q("0.10948 mm")))
sketch5.addConstraint(Sketcher.Constraint("DistanceY", 34, 2, 35, 2, Q("0.047089 mm")))
sketch5.addConstraint(Sketcher.Constraint("DistanceY", 35, 2, 36, 2, Q("0.048049 mm")))
sketch5.addConstraint(Sketcher.Constraint("DistanceX", 35, 2, 37, 2, Q("0.139849 mm")))
sketch5.addConstraint(Sketcher.Constraint("DistanceX", 37, 2, 38, 2, Q("0.088431 mm")))
sketch5.addConstraint(Sketcher.Constraint("DistanceY", 35, 2, 38, 2, Q("0.104971 mm")))
sketch5.addConstraint(Sketcher.Constraint("DistanceY", 40, 2, 41, 2, Q("0.010269 mm")))
pocket4 = body.newObject("PartDesign::Pocket", "Pocket003")
pocket4.Profile = sketch5
pocket4.Length = 20
pocket4.Reversed = True

sketch6 = body.newObject("Sketcher::SketchObject", "Sketch005")
sketch6.AttachmentSupport = (doc.getObject("XY_Plane"), [""])
sketch6.MapMode = "FlatFace"
sketch6.addGeometry(Part.LineSegment(App.Vector(-92, -23, 0), App.Vector(-92, -4, 0)), False)
sketch6.addGeometry(Part.ArcOfCircle(Part.Circle(App.Vector(-50, -116, 0), App.Vector(0, 0, 1), 120), math.radians(85), math.radians(111)), False)
sketch6.addGeometry(Part.ArcOfCircle(Part.Circle(App.Vector(-102, -19, 0), App.Vector(0, 0, 1), 66), math.radians(4.19), math.radians(20.21)), False)
sketch6.addGeometry(Part.ArcOfCircle(Part.Circle(App.Vector(-50, -116, 0), App.Vector(0, 0, 1), 102), math.radians(82), math.radians(114)), False)
sketch6.addConstraint(Sketcher.Constraint("Coincident", 0, 2, 1, 2))
sketch6.addConstraint(Sketcher.Constraint("Coincident", 1, 1, 2, 2))
sketch6.addConstraint(Sketcher.Constraint("Coincident", 2, 1, 3, 1))
sketch6.addConstraint(Sketcher.Constraint("Coincident", 3, 2, 0, 1))
sketch6.addConstraint(Sketcher.Constraint("Coincident", 3, 3, 1, 3))
sketch6.addConstraint(Sketcher.Constraint("Radius", 1, Q("120 mm")))
sketch6.addConstraint(Sketcher.Constraint("Radius", 3, Q("102.5 mm")))
sketch6.addConstraint(Sketcher.Constraint("DistanceX", 3, 2, -1, 1, Q("92 mm")))
sketch6.addConstraint(Sketcher.Constraint("DistanceX", 1, 3, -1, 1, Q("49.7 mm")))
sketch6.addConstraint(Sketcher.Constraint("DistanceY", 1, 3, -1, 1, Q("116.25 mm")))
sketch6.addConstraint(Sketcher.Constraint("Radius", 2, Q("66.117732 mm")))
sketch6.addConstraint(Sketcher.Constraint("DistanceX", 0, 2, 2, 1, Q("56.073501 mm")))
sketch6.addConstraint(Sketcher.Constraint("DistanceY", 0, 2, -1, 1, Q("4.010729 mm")))
sketch6.addConstraint(Sketcher.Constraint("DistanceX", 0, 2, 1, 1, Q("52.177941 mm")))
pocket5 = body.newObject("PartDesign::Pocket", "Pocket004")
pocket5.Profile = sketch6
pocket5.Length = 10
pocket5.Reversed = True

doc.recompute()
